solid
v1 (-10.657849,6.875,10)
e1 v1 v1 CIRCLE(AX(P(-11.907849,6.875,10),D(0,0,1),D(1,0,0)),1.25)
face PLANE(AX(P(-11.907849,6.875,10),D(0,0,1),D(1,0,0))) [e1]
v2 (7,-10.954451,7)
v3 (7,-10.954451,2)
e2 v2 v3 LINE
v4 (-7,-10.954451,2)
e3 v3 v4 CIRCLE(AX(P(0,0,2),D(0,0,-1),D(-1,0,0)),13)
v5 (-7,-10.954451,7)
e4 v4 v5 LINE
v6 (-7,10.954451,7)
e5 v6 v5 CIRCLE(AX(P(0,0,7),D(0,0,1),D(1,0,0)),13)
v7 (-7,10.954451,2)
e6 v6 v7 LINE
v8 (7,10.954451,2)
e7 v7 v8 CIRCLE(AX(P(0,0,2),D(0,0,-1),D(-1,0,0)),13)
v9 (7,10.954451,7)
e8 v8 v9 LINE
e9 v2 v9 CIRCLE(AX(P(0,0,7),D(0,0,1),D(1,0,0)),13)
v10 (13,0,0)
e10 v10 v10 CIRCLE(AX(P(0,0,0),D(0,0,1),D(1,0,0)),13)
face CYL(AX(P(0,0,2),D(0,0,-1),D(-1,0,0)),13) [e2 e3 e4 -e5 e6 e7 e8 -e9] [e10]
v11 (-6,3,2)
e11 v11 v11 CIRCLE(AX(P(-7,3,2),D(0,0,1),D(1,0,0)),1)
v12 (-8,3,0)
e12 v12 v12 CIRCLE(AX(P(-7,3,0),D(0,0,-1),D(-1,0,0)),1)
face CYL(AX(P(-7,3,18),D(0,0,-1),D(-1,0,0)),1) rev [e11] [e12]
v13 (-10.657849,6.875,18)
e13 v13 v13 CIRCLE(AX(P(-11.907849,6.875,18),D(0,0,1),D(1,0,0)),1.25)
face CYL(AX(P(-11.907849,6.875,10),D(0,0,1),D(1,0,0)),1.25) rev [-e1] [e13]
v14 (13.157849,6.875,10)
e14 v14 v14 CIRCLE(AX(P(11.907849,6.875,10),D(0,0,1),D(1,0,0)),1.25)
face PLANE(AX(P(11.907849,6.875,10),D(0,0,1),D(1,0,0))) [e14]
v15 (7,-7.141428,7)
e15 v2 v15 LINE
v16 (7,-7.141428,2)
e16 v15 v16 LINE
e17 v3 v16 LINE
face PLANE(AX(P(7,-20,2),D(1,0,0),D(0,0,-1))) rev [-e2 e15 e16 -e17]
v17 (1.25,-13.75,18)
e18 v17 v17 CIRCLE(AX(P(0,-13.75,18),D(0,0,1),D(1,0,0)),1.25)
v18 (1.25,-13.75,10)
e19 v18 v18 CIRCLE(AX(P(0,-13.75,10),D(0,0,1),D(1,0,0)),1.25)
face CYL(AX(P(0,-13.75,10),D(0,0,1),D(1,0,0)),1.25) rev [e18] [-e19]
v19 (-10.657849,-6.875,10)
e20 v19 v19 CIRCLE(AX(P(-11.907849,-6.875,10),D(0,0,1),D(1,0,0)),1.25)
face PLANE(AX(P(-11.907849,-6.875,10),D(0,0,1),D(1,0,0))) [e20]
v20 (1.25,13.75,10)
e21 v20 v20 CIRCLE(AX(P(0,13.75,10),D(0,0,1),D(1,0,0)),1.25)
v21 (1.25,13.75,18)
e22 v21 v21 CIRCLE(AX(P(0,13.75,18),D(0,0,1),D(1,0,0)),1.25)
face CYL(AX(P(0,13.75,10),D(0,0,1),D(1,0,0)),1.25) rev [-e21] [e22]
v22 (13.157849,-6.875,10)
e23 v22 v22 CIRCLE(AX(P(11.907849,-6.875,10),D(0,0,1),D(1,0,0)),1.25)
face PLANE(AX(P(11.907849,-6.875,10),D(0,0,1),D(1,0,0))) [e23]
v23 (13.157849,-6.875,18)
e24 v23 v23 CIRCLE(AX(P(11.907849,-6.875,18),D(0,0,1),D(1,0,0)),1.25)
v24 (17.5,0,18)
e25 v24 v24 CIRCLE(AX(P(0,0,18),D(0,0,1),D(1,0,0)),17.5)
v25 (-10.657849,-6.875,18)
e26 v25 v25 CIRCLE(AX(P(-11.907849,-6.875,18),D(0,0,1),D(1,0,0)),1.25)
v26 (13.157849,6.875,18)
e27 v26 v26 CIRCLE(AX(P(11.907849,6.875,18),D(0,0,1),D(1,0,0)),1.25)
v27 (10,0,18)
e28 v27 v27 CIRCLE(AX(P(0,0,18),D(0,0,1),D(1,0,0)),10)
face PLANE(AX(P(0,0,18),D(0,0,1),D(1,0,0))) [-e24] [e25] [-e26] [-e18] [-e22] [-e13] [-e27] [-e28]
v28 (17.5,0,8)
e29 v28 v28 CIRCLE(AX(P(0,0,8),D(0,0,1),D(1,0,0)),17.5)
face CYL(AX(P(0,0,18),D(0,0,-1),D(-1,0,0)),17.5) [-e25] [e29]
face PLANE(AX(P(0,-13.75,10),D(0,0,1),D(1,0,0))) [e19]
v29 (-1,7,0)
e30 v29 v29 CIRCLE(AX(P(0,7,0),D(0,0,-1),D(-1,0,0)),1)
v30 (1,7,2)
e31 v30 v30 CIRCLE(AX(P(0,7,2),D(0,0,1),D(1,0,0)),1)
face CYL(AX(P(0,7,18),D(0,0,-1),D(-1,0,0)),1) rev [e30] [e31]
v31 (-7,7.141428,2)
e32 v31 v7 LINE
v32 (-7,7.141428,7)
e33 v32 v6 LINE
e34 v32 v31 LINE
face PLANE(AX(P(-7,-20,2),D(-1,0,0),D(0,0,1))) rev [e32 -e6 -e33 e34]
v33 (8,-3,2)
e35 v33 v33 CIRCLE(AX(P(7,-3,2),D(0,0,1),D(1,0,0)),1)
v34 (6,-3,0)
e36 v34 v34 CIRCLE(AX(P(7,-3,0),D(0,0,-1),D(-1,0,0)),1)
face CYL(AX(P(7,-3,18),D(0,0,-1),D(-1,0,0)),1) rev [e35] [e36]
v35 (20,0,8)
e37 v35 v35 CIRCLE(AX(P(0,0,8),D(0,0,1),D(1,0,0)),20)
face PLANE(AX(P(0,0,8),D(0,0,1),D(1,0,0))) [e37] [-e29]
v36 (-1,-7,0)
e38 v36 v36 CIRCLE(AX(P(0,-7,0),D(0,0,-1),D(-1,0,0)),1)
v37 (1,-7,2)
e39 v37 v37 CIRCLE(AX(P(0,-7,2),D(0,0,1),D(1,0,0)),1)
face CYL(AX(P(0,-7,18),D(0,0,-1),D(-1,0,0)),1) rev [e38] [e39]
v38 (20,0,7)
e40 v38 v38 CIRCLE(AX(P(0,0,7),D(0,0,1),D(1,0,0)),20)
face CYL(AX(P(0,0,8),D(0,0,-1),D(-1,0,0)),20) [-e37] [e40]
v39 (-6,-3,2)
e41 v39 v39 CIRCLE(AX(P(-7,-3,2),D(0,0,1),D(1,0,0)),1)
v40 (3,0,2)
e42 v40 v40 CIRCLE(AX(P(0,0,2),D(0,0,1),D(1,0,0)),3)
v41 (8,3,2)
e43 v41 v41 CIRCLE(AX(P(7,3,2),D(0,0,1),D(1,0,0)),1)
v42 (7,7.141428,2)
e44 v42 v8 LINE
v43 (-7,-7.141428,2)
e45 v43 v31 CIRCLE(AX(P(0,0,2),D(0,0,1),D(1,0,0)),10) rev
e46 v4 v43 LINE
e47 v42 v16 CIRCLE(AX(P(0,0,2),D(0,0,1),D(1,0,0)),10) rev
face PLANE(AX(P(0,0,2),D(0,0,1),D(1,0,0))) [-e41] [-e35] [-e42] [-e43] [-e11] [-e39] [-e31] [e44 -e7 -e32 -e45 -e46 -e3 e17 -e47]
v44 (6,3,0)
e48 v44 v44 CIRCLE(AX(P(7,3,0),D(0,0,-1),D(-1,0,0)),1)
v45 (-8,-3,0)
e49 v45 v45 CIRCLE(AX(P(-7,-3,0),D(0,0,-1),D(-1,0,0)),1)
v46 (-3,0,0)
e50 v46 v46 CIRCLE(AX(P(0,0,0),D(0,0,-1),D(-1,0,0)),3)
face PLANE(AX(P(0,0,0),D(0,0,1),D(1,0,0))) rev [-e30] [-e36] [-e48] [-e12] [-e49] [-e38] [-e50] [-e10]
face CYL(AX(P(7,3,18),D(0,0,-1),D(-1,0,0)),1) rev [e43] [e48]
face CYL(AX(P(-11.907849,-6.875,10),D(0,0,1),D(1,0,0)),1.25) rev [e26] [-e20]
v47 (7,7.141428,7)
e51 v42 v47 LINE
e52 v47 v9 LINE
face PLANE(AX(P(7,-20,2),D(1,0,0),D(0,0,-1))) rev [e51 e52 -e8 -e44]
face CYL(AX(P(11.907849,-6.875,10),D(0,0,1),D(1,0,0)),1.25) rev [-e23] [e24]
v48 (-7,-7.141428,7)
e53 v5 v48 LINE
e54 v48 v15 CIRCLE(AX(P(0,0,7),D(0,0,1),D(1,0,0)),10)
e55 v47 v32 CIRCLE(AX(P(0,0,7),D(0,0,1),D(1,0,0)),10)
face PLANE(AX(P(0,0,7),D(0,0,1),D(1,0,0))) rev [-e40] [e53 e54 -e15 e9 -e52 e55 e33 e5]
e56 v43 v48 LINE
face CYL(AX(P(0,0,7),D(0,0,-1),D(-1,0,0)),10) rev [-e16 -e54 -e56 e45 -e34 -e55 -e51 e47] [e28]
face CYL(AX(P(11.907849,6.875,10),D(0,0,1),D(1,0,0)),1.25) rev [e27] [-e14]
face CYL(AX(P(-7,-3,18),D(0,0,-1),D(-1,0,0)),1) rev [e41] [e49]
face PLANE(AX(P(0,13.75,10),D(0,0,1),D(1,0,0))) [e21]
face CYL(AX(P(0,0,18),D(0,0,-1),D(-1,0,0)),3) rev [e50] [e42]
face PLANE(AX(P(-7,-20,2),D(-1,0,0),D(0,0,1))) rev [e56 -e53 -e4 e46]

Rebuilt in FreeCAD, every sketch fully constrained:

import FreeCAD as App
import Part
import Sketcher
from FreeCAD import Vector


def add_polygon(sketch, points):
    """Adds a closed chain of lines whose ends are joined by coincident constraints."""
    first, n = sketch.GeometryCount, len(points)
    for a, b in zip(points, points[1:] + points[:1]):
        sketch.addGeometry(Part.LineSegment(App.Vector(*a, 0), App.Vector(*b, 0)), False)
    for i in range(n):
        sketch.addConstraint(Sketcher.Constraint("Coincident", first + i, 2, first + (i + 1) % n, 1))

doc = App.newDocument("Part")
body = doc.addObject("PartDesign::Body", "Body")

# Sketch on XY plane
sketch1 = body.newObject("Sketcher::SketchObject", "Sketch")
sketch1.AttachmentSupport = (doc.getObject("XY_Plane"), [""])
sketch1.MapMode = "FlatFace"
sketch1.addGeometry(Part.Circle(Vector(0, 0, 0), Vector(0, 0, 1), 13), False)
sketch1.addConstraint([
    Sketcher.Constraint("Coincident", 0, 3, -1, 1),
    Sketcher.Constraint("Diameter", 0, 26.0),
])
pad1 = body.newObject("PartDesign::Pad", "Pad")
pad1.Profile = sketch1
pad1.Length = 2

# Sketch on XY plane
sketch2 = body.newObject("Sketcher::SketchObject", "Sketch001")
sketch2.AttachmentSupport = (doc.getObject("XY_Plane"), [""])
sketch2.MapMode = "FlatFace"
sketch2.AttachmentOffset = App.Placement(Vector(0, 0, 2), App.Rotation())
sketch2.addGeometry([
    Part.Circle(Vector(0, 0, 0), Vector(0, 0, 1), 13),
    Part.Circle(Vector(0, 0, 0), Vector(0, 0, 1), 10),
], False)
sketch2.addConstraint([
    Sketcher.Constraint("Coincident", 0, 3, -1, 1),
    Sketcher.Constraint("Coincident", 1, 3, -1, 1),
    Sketcher.Constraint("Diameter", 0, 26.0),
    Sketcher.Constraint("Diameter", 1, 20.0),
])
pad2 = body.newObject("PartDesign::Pad", "Pad001")
pad2.Profile = sketch2
pad2.Length = 5

# Sketch on XY plane
sketch3 = body.newObject("Sketcher::SketchObject", "Sketch002")
sketch3.AttachmentSupport = (doc.getObject("XY_Plane"), [""])
sketch3.MapMode = "FlatFace"
sketch3.AttachmentOffset = App.Placement(Vector(0, 0, 7), App.Rotation())
sketch3.addGeometry([
    Part.Circle(Vector(0, 0, 0), Vector(0, 0, 1), 20),
    Part.Circle(Vector(0, 0, 0), Vector(0, 0, 1), 10),
], False)
sketch3.addConstraint([
    Sketcher.Constraint("Coincident", 0, 3, -1, 1),
    Sketcher.Constraint("Coincident", 1, 3, -1, 1),
    Sketcher.Constraint("Diameter", 0, 40.0),
    Sketcher.Constraint("Diameter", 1, 20.0),
])
pad3 = body.newObject("PartDesign::Pad", "Pad002")
pad3.Profile = sketch3
pad3.Length = 1

# Sketch on XY plane
sketch4 = body.newObject("Sketcher::SketchObject", "Sketch003")
sketch4.AttachmentSupport = (doc.getObject("XY_Plane"), [""])
sketch4.MapMode = "FlatFace"
sketch4.AttachmentOffset = App.Placement(Vector(0, 0, 8), App.Rotation())
sketch4.addGeometry([
    Part.Circle(Vector(0, 0, 0), Vector(0, 0, 1), 18),
    Part.Circle(Vector(0, 0, 0), Vector(0, 0, 1), 10),
], False)
sketch4.addConstraint([
    Sketcher.Constraint("Coincident", 0, 3, -1, 1),
    Sketcher.Constraint("Coincident", 1, 3, -1, 1),
    Sketcher.Constraint("Diameter", 0, 35.0),
    Sketcher.Constraint("Diameter", 1, 20.0),
])
pad4 = body.newObject("PartDesign::Pad", "Pad003")
pad4.Profile = sketch4
pad4.Length = 10

# Sketch on XY plane
sketch5 = body.newObject("Sketcher::SketchObject", "Sketch004")
sketch5.AttachmentSupport = (doc.getObject("XY_Plane"), [""])
sketch5.MapMode = "FlatFace"
sketch5.AttachmentOffset = App.Placement(Vector(0, 0, 18), App.Rotation())
sketch5.addGeometry([
    Part.Circle(Vector(11.9, 6.9, 0), Vector(0, 0, 1), 1.2),  # 0
    Part.Circle(Vector(11.9, -6.9, 0), Vector(0, 0, 1), 1.2),  # 1
    Part.Circle(Vector(0, -13.8, 0), Vector(0, 0, 1), 1.2),  # 2
    Part.Circle(Vector(-11.9, -6.9, 0), Vector(0, 0, 1), 1.2),  # 3
    Part.Circle(Vector(-11.9, 6.9, 0), Vector(0, 0, 1), 1.2),  # 4
    Part.Circle(Vector(0, 13.8, 0), Vector(0, 0, 1), 1.2),  # 5
], False)
sketch5.addConstraint([
    Sketcher.Constraint("Equal", 0, 1),
    Sketcher.Constraint("Equal", 1, 2),
    Sketcher.Constraint("Equal", 2, 3),
    Sketcher.Constraint("Equal", 3, 4),
    Sketcher.Constraint("Equal", 4, 5),
    Sketcher.Constraint("Symmetric", 0, 3, 3, 3, -1, 1),
    Sketcher.Constraint("Symmetric", 1, 3, 4, 3, -1, 1),
    Sketcher.Constraint("Symmetric", 2, 3, 5, 3, -1, 1),
    Sketcher.Constraint("Symmetric", 1, 3, 3, 3, -2),
    Sketcher.Constraint("PointOnObject", 2, 3, -2),
    Sketcher.Constraint("Diameter", 0, 2.5),
    Sketcher.Constraint("DistanceY", 2, 3, 5, 3, 27.5),
    Sketcher.Constraint("DistanceY", 1, 3, 0, 3, 13.75),
    Sketcher.Constraint("DistanceX", 3, 3, 1, 3, 23.815699),
])
pocket1 = body.newObject("PartDesign::Pocket", "Pocket")
pocket1.Profile = sketch5
pocket1.Length = 8

# Sketch on XY plane
sketch6 = body.newObject("Sketcher::SketchObject", "Sketch005")
sketch6.AttachmentSupport = (doc.getObject("XY_Plane"), [""])
sketch6.MapMode = "FlatFace"
sketch6.addGeometry([
    Part.Circle(Vector(0, 0, 0), Vector(0, 0, 1), 3),  # 0
    Part.Circle(Vector(0, 7, 0), Vector(0, 0, 1), 1),  # 1
    Part.Circle(Vector(0, -7, 0), Vector(0, 0, 1), 1),  # 2
    Part.Circle(Vector(7, 3, 0), Vector(0, 0, 1), 1),  # 3
    Part.Circle(Vector(7, -3, 0), Vector(0, 0, 1), 1),  # 4
    Part.Circle(Vector(-7, 3, 0), Vector(0, 0, 1), 1),  # 5
    Part.Circle(Vector(-7, -3, 0), Vector(0, 0, 1), 1),  # 6
], False)
sketch6.addConstraint([
    Sketcher.Constraint("Coincident", 0, 3, -1, 1),
    Sketcher.Constraint("Equal", 1, 2),
    Sketcher.Constraint("Equal", 2, 3),
    Sketcher.Constraint("Equal", 3, 4),
    Sketcher.Constraint("Equal", 4, 5),
    Sketcher.Constraint("Equal", 5, 6),
    Sketcher.Constraint("Symmetric", 1, 3, 2, 3, -1, 1),
    Sketcher.Constraint("Symmetric", 4, 3, 5, 3, -1, 1),
    Sketcher.Constraint("Symmetric", 3, 3, 6, 3, -1, 1),
    Sketcher.Constraint("Symmetric", 3, 3, 5, 3, -2),
    Sketcher.Constraint("PointOnObject", 1, 3, -2),
    Sketcher.Constraint("Diameter", 0, 6.0),
    Sketcher.Constraint("Diameter", 1, 2.0),
    Sketcher.Constraint("DistanceY", -1, 1, 1, 3, 7.0),
    Sketcher.Constraint("DistanceX", -1, 1, 3, 3, 7.0),
    Sketcher.Constraint("DistanceY", -1, 1, 3, 3, 3.0),
])
pocket2 = body.newObject("PartDesign::Pocket", "Pocket001")
pocket2.Profile = sketch6
pocket2.Type = "ThroughAll"
pocket2.Reversed = True

# Sketch on XZ plane
sketch7 = body.newObject("Sketcher::SketchObject", "Sketch006")
sketch7.AttachmentSupport = (doc.getObject("XZ_Plane"), [""])
sketch7.MapMode = "FlatFace"
add_polygon(sketch7, [(-7, 2), (-7, 7), (7, 7), (7, 2)])  # lines 0-3
sketch7.addConstraint([
    Sketcher.Constraint("Vertical", 0),
    Sketcher.Constraint("Horizontal", 1),
    Sketcher.Constraint("Vertical", 2),
    Sketcher.Constraint("Horizontal", 3),
    Sketcher.Constraint("DistanceX", 1, 1, 1, 2, 14.0),
    Sketcher.Constraint("DistanceY", 0, 1, 0, 2, 5.0),
    Sketcher.Constraint("DistanceX", 0, 2, -1, 1, 7.0),
    Sketcher.Constraint("DistanceY", -1, 1, 0, 2, 7.0),
])
pocket3 = body.newObject("PartDesign::Pocket", "Pocket002")
pocket3.Profile = sketch7
pocket3.Type = "ThroughAll"
pocket3.Midplane = True

doc.recompute()
